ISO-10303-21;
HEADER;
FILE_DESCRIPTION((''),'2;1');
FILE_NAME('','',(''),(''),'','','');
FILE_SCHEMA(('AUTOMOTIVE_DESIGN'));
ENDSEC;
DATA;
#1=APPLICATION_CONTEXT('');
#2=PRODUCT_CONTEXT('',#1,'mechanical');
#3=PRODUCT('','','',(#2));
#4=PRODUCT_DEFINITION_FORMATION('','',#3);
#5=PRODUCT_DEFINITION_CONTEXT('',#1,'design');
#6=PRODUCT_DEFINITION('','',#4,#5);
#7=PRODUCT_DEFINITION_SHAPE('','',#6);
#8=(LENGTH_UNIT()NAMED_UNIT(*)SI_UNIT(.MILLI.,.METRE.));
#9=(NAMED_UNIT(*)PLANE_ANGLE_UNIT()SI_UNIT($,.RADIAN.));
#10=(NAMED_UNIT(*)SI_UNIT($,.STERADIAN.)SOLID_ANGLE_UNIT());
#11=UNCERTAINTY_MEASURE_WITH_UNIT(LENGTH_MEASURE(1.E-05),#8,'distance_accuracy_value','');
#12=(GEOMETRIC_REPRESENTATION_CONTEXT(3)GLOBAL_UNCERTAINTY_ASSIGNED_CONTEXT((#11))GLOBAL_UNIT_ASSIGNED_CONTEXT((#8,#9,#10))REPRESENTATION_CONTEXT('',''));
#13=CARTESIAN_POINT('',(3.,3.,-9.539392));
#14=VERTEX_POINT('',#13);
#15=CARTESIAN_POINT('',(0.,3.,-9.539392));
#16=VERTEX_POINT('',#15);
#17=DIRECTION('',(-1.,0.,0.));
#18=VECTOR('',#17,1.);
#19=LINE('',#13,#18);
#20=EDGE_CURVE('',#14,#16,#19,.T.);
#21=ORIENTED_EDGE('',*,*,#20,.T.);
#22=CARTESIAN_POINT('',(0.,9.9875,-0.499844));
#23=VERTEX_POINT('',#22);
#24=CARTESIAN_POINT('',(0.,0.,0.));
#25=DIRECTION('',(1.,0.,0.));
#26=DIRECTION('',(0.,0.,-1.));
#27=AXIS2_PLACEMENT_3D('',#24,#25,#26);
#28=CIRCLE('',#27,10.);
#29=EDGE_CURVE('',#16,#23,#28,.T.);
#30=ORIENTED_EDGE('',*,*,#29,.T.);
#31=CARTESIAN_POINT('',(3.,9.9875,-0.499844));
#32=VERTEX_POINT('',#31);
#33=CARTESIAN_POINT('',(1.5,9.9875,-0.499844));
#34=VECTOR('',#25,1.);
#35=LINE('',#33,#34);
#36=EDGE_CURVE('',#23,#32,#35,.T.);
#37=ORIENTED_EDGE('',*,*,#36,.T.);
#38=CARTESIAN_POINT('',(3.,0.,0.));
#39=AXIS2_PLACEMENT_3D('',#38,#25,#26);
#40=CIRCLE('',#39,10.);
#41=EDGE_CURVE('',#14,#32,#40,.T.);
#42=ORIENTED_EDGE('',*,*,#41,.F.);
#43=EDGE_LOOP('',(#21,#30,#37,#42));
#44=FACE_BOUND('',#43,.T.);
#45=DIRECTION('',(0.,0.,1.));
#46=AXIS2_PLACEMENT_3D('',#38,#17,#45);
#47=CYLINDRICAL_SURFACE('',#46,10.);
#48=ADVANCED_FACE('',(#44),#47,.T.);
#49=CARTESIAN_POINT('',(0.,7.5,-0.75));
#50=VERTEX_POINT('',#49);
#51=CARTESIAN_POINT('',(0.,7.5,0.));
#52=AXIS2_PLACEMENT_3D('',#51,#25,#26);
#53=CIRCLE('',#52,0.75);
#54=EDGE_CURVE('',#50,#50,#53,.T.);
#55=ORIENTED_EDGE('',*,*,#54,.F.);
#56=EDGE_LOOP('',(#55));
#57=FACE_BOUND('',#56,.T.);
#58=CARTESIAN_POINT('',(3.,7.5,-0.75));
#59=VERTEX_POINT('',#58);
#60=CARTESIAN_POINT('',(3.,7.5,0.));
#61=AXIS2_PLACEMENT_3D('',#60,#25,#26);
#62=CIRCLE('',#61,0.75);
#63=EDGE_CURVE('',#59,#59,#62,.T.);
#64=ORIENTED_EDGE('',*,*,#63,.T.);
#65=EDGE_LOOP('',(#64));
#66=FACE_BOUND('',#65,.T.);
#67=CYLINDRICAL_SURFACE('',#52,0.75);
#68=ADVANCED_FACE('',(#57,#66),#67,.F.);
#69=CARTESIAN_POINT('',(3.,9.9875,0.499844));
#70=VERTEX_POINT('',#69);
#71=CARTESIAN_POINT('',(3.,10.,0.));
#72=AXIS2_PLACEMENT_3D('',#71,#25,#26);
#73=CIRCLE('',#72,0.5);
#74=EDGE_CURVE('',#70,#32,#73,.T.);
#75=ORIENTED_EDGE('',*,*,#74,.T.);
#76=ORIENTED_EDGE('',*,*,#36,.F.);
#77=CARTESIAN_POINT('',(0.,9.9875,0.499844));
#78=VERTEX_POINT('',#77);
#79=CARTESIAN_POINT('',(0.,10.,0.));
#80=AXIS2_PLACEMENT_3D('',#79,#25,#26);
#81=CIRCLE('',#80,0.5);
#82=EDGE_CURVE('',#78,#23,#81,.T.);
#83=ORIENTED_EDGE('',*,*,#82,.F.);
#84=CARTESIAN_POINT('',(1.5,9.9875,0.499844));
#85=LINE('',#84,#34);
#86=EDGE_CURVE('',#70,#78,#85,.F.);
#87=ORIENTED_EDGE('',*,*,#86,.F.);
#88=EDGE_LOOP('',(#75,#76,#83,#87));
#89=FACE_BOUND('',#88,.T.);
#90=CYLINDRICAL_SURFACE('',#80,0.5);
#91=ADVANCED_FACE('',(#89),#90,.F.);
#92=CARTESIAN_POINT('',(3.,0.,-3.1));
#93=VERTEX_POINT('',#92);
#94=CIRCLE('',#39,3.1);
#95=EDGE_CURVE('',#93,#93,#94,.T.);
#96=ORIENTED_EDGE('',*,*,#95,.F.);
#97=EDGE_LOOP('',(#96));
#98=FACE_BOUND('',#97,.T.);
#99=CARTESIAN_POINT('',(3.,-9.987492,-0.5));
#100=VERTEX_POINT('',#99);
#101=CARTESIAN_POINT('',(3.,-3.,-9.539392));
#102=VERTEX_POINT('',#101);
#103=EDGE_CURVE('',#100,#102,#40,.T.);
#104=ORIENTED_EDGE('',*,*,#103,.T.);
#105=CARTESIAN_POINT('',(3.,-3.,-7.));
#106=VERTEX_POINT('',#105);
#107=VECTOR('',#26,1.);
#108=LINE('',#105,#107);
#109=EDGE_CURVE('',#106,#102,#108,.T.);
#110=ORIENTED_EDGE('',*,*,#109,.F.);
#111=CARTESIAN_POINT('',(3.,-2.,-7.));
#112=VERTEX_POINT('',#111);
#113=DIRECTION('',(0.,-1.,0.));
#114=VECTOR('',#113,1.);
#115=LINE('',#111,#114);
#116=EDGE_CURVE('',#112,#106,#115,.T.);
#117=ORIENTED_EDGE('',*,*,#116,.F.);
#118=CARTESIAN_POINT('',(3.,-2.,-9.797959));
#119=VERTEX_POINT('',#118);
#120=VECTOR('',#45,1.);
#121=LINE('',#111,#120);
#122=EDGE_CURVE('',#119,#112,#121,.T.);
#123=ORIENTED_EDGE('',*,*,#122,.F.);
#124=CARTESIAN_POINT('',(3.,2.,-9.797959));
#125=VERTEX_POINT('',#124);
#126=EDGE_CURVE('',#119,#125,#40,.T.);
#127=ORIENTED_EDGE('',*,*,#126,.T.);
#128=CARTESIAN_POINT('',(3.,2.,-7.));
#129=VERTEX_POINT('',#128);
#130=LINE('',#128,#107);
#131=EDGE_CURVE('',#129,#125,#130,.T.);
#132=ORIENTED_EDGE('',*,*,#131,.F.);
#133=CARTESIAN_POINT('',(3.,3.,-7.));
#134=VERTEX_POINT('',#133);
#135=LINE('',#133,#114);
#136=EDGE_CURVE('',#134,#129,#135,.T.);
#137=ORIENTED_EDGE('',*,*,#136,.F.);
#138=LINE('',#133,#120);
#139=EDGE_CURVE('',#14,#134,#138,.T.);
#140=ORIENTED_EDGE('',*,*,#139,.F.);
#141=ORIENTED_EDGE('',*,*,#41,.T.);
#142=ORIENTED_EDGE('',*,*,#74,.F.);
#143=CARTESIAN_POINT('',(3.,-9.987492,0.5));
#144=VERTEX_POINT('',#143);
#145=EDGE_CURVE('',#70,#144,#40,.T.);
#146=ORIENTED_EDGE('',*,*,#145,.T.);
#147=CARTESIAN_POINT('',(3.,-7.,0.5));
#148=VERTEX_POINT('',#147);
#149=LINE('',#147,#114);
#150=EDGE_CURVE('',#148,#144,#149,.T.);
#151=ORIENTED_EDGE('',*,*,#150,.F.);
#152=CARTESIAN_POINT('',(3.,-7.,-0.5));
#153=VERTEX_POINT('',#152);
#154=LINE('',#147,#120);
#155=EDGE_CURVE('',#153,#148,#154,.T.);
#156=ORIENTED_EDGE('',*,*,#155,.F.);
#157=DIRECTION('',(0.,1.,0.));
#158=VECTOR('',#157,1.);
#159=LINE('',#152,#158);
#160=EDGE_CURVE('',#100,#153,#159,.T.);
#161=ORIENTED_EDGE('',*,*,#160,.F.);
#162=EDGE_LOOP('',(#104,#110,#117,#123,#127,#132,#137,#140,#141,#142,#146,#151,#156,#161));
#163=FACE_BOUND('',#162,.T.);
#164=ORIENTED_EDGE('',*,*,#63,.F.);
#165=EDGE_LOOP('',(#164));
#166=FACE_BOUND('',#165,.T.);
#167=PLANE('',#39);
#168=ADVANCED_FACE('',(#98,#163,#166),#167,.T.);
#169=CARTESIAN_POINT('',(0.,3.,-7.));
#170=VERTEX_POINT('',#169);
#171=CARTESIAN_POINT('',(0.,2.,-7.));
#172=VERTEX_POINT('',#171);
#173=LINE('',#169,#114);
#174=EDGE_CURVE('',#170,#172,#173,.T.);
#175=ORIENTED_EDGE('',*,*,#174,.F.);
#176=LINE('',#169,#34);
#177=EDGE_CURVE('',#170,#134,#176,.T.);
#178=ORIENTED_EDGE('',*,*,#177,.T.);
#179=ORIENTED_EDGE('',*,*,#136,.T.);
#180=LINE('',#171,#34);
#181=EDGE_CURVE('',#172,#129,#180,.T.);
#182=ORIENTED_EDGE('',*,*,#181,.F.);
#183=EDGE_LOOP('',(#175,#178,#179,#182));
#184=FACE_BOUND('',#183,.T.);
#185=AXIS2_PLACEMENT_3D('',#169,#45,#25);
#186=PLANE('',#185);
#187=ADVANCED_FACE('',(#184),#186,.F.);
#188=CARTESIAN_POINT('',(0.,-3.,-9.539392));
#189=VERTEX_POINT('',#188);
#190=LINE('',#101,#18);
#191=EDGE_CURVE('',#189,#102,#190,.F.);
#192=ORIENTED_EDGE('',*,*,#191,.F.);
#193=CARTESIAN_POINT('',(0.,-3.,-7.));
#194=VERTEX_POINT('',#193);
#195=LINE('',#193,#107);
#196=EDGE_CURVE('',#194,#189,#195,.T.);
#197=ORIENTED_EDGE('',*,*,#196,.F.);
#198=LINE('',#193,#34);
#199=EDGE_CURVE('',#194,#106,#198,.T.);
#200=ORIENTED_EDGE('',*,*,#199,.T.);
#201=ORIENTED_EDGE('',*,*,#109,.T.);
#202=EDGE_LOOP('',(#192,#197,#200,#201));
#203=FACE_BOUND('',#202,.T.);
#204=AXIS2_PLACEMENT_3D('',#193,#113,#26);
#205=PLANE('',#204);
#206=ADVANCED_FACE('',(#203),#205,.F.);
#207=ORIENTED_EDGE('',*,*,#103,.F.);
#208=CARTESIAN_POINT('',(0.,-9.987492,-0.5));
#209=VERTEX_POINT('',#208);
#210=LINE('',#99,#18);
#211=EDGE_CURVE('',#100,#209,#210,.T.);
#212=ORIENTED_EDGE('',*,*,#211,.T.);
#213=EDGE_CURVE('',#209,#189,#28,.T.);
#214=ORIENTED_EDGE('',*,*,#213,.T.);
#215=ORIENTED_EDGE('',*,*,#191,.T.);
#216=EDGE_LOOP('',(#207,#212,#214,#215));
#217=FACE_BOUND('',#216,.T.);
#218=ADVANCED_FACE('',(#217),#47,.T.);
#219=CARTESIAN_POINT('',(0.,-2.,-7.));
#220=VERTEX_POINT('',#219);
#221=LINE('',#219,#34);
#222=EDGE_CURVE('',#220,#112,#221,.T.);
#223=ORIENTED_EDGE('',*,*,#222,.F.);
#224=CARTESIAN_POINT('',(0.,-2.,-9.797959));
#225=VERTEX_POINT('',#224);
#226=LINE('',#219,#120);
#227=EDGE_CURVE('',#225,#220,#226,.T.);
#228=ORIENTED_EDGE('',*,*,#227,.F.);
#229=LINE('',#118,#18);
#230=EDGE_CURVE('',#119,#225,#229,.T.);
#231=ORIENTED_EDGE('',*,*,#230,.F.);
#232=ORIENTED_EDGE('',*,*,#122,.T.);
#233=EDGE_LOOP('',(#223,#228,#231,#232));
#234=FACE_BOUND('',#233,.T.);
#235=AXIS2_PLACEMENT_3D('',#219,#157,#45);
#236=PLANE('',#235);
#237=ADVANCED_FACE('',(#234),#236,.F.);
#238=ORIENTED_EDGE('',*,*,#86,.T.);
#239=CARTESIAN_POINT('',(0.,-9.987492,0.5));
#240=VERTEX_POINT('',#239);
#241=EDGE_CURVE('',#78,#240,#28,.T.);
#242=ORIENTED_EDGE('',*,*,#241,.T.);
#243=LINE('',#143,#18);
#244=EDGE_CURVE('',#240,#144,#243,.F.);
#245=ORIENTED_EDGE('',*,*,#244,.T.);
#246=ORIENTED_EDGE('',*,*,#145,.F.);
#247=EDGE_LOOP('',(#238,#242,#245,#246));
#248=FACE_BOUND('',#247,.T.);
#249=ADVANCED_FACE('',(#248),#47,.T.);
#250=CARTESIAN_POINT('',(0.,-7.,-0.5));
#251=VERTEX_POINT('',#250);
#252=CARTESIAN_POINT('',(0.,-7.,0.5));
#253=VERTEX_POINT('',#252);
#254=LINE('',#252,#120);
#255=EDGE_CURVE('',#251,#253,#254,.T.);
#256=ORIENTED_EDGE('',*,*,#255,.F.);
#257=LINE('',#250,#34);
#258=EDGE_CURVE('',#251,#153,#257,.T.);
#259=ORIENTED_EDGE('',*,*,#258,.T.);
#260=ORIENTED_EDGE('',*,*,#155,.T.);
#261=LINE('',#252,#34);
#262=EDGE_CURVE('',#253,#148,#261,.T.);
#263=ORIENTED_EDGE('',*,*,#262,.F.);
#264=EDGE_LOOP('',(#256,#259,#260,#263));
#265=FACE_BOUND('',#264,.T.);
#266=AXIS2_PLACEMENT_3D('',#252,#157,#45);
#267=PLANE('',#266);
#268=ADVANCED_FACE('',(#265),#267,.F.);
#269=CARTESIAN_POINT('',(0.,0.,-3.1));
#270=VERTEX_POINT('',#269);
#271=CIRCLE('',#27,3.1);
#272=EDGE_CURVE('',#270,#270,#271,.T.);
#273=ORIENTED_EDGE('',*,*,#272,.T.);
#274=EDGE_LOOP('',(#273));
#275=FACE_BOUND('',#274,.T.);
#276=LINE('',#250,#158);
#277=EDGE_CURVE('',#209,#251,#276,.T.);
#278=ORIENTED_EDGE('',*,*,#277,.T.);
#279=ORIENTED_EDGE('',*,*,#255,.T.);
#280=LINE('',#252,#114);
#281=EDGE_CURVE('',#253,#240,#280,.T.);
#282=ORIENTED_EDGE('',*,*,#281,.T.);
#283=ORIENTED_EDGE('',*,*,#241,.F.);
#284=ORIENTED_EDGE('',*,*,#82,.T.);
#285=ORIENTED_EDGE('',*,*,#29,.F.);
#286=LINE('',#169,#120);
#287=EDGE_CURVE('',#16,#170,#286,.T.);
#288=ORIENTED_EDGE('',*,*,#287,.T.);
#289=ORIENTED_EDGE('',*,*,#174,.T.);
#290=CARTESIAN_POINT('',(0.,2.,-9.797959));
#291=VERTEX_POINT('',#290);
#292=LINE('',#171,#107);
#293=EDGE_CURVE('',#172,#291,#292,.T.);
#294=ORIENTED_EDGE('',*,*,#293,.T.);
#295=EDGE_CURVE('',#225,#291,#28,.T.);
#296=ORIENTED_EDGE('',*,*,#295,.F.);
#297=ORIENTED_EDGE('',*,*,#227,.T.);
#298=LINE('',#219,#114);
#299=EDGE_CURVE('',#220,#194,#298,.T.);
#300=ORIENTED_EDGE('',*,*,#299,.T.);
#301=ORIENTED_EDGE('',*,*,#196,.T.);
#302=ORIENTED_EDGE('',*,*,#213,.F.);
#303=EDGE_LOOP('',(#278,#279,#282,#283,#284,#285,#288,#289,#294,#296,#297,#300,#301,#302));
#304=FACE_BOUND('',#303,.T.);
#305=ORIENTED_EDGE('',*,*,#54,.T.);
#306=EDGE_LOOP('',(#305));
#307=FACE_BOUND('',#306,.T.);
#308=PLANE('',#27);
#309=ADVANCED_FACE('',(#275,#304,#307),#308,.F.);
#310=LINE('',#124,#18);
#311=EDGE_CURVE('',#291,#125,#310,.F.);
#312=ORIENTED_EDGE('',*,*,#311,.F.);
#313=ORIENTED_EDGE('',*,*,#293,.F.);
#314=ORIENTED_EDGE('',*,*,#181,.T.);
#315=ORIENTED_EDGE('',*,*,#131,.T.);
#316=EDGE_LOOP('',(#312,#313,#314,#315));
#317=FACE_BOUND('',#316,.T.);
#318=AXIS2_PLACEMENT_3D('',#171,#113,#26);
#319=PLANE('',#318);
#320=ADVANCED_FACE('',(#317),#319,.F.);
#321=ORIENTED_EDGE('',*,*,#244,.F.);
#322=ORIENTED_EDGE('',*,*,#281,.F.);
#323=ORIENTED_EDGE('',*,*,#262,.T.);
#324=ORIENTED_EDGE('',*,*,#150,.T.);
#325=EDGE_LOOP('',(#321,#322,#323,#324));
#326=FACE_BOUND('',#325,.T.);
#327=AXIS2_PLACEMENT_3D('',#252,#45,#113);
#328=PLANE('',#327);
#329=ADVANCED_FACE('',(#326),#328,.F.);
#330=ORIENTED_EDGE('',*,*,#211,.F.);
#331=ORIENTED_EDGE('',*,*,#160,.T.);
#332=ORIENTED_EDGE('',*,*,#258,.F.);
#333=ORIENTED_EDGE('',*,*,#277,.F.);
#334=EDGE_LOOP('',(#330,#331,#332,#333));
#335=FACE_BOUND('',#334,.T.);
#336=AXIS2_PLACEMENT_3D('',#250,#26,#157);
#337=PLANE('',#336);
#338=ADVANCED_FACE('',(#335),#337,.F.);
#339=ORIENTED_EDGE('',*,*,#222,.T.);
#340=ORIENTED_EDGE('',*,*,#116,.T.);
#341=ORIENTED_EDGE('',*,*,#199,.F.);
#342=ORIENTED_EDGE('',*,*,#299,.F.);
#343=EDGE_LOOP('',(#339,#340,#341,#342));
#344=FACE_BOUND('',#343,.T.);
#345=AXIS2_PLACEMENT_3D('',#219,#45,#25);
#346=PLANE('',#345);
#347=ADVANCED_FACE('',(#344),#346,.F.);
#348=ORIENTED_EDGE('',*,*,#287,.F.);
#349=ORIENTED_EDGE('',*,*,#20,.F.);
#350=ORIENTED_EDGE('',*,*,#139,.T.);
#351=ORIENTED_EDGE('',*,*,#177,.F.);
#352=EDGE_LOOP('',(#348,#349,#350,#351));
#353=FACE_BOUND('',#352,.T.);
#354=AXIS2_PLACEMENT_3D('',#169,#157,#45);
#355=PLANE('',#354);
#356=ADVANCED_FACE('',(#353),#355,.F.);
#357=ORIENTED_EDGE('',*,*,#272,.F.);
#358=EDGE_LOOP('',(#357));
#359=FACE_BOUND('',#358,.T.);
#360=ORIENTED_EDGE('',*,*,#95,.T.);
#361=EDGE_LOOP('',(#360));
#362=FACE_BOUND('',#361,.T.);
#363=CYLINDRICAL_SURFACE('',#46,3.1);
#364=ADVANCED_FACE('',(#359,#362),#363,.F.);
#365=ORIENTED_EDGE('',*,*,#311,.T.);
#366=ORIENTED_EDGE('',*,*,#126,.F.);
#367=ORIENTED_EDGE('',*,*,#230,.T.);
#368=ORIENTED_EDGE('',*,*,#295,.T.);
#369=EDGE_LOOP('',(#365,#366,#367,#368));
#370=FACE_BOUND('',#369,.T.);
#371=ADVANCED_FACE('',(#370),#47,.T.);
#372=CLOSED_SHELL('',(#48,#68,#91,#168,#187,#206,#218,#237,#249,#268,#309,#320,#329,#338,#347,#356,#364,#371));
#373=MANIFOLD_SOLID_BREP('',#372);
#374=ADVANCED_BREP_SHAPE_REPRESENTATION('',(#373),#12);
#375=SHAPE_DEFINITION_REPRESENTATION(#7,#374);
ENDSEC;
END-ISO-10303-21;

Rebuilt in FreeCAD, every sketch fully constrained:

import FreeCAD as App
import Part
import Sketcher
from FreeCAD import Vector

doc = App.newDocument("Part")
params = doc.addObject("Spreadsheet::Sheet", "Params")
for row, (alias, value) in enumerate([
    ("sketch1_diameter", "20 mm"),
    ("sketch1_diameter2", "6.2 mm"),
    ("pad1_length", "3 mm"),
    ("sketch2_diameter", "1 mm"),
    ("sketch2_diameter2", "1.5 mm"),
    ("sketch2_width", "1 mm"),
    ("pocket1_length", "3 mm"),
], start=1):
    params.set(f"A{row}", alias)
    params.set(f"B{row}", "=" + value)
    params.setAlias(f"B{row}", alias)

body = doc.addObject("PartDesign::Body", "Body")

# Sketch on YZ plane
sketch1 = doc.addObject("Sketcher::SketchObject", "Sketch")
body.addObject(sketch1)
sketch1.AttachmentSupport = (doc.YZ_Plane, [""])
sketch1.MapMode = "FlatFace"
sketch1.addGeometry([
    Part.Circle(Vector(0, 0, 0), Vector(0, 0, 1), 10),
    Part.Circle(Vector(0, 0, 0), Vector(0, 0, 1), 3.1),
], False)
sketch1.addConstraint([
    Sketcher.Constraint("Coincident", 0, 3, -1, 1),
    Sketcher.Constraint("Coincident", 1, 3, -1, 1),
    Sketcher.Constraint("Diameter", 0, 20.0),
    Sketcher.Constraint("Diameter", 1, 6.2),
])
sketch1.setExpression("Constraints[2]", "Params.sketch1_diameter")
sketch1.setExpression("Constraints[3]", "Params.sketch1_diameter2")
pad1 = doc.addObject("PartDesign::Pad", "Pad")
body.addObject(pad1)
pad1.Profile = sketch1
pad1.setExpression("Length", "Params.pad1_length")

# Sketch on YZ plane
sketch2 = doc.addObject("Sketcher::SketchObject", "Sketch001")
body.addObject(sketch2)
sketch2.AttachmentSupport = (doc.YZ_Plane, [""])
sketch2.MapMode = "FlatFace"
sketch2.AttachmentOffset = App.Placement(Vector(0, 0, 3), App.Rotation())
sketch2.addGeometry([
    Part.Circle(Vector(7.5, 0, 0), Vector(0, 0, 1), 0.8),  # 0
    Part.Circle(Vector(10, 0, 0), Vector(0, 0, 1), 0.5),  # 1
    Part.LineSegment(Vector(3, -7, 0), Vector(2, -7, 0)),  # 2
    Part.LineSegment(Vector(2, -7, 0), Vector(2, -12.7, 0)),  # 3
    Part.LineSegment(Vector(2, -12.7, 0), Vector(3, -12.7, 0)),  # 4
    Part.LineSegment(Vector(3, -12.7, 0), Vector(3, -7, 0)),  # 5
    Part.LineSegment(Vector(-2, -7, 0), Vector(-3, -7, 0)),  # 6
    Part.LineSegment(Vector(-3, -7, 0), Vector(-3, -12.7, 0)),  # 7
    Part.LineSegment(Vector(-3, -12.7, 0), Vector(-2, -12.7, 0)),  # 8
    Part.LineSegment(Vector(-2, -12.7, 0), Vector(-2, -7, 0)),  # 9
    Part.LineSegment(Vector(-7, 0.5, 0), Vector(-11.5, 0.5, 0)),  # 10
    Part.LineSegment(Vector(-11.5, 0.5, 0), Vector(-11.5, -0.5, 0)),  # 11
    Part.LineSegment(Vector(-11.5, -0.5, 0), Vector(-7, -0.5, 0)),  # 12
    Part.LineSegment(Vector(-7, -0.5, 0), Vector(-7, 0.5, 0)),  # 13
], False)
sketch2.addConstraint([
    Sketcher.Constraint("Coincident", 2, 2, 3, 1),
    Sketcher.Constraint("Coincident", 3, 2, 4, 1),
    Sketcher.Constraint("Coincident", 4, 2, 5, 1),
    Sketcher.Constraint("Coincident", 5, 2, 2, 1),
    Sketcher.Constraint("Coincident", 6, 2, 7, 1),
    Sketcher.Constraint("Coincident", 7, 2, 8, 1),
    Sketcher.Constraint("Coincident", 8, 2, 9, 1),
    Sketcher.Constraint("Coincident", 9, 2, 6, 1),
    Sketcher.Constraint("Coincident", 10, 2, 11, 1),
    Sketcher.Constraint("Coincident", 11, 2, 12, 1),
    Sketcher.Constraint("Coincident", 12, 2, 13, 1),
    Sketcher.Constraint("Coincident", 13, 2, 10, 1),
    Sketcher.Constraint("Horizontal", 2),
    Sketcher.Constraint("Vertical", 3),
    Sketcher.Constraint("Horizontal", 4),
    Sketcher.Constraint("Vertical", 5),
    Sketcher.Constraint("Horizontal", 6),
    Sketcher.Constraint("Vertical", 7),
    Sketcher.Constraint("Horizontal", 8),
    Sketcher.Constraint("Vertical", 9),
    Sketcher.Constraint("Horizontal", 10),
    Sketcher.Constraint("Vertical", 11),
    Sketcher.Constraint("Horizontal", 12),
    Sketcher.Constraint("Vertical", 13),
    Sketcher.Constraint("Symmetric", 5, 2, 6, 2, -2),
    Sketcher.Constraint("Symmetric", 3, 2, 8, 2, -2),
    Sketcher.Constraint("PointOnObject", 0, 3, -1),
    Sketcher.Constraint("PointOnObject", 1, 3, -1),
    Sketcher.Constraint("Equal", 8, 11),
    Sketcher.Constraint("Diameter", 1, 1.0),
    Sketcher.Constraint("Diameter", 0, 1.5),
    Sketcher.Constraint("DistanceX", 2, 2, 2, 1, 1.0),
    Sketcher.Constraint("DistanceX", -1, 1, 1, 3, 10.0),
    Sketcher.Constraint("DistanceX", -1, 1, 2, 2, 2.0),
    Sketcher.Constraint("DistanceY", 2, 2, -1, 1, 7.0),
    Sketcher.Constraint("DistanceX", 12, 2, -1, 1, 7.0),
    Sketcher.Constraint("DistanceX", -1, 1, 0, 3, 7.5),
    Sketcher.Constraint("DistanceY", -1, 1, 10, 2, 0.5),
    Sketcher.Constraint("DistanceX", 10, 2, 10, 1, 4.505813),
    Sketcher.Constraint("DistanceY", 3, 2, 3, 1, 5.709686),
])
sketch2.setExpression("Constraints[29]", "Params.sketch2_diameter")
sketch2.setExpression("Constraints[30]", "Params.sketch2_diameter2")
sketch2.setExpression("Constraints[31]", "Params.sketch2_width")
pocket1 = doc.addObject("PartDesign::Pocket", "Pocket")
body.addObject(pocket1)
pocket1.Profile = sketch2
pocket1.setExpression("Length", "Params.pocket1_length")

doc.recompute()
